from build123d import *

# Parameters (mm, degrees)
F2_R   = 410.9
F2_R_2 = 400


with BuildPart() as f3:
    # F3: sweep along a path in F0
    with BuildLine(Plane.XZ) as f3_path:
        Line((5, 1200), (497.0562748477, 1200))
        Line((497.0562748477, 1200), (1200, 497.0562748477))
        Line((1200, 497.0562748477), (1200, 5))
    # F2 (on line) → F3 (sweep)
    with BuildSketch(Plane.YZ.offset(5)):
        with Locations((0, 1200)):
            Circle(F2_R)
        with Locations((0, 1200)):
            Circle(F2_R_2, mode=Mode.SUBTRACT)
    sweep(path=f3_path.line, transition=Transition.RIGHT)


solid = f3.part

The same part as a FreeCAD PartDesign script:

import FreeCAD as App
import Part
import Sketcher

V = App.Vector
Q = App.Units.Quantity

doc = App.newDocument("Part")
body = doc.addObject("PartDesign::Body", "Body")

sketch1 = body.newObject("Sketcher::SketchObject", "Sketch")
sketch1.AttachmentSupport = (doc.getObject("YZ_Plane"), [""])
sketch1.MapMode = "FlatFace"
sketch1.AttachmentOffset = App.Placement(V(0, 0, 5), App.Rotation())
sketch1.addGeometry([
    Part.Circle(V(0, 1200, 0), V(0, 0, 1), 411),
    Part.Circle(V(0, 1200, 0), V(0, 0, 1), 400),
], False)
sketch1.addConstraint([
    Sketcher.Constraint("Coincident", 1, 3, 0, 3),
    Sketcher.Constraint("PointOnObject", 0, 3, -2),
    Sketcher.Constraint("Diameter", 1, 800.0),
    Sketcher.Constraint("Diameter", 0, 821.8),
    Sketcher.Constraint("DistanceY", -1, 1, 0, 3, 1200.0),
])

sketch2 = body.newObject("Sketcher::SketchObject", "Sketch001")
sketch2.AttachmentSupport = (doc.getObject("XZ_Plane"), [""])
sketch2.MapMode = "FlatFace"
sketch2.addGeometry([
    Part.LineSegment(V(5, 1200, 0), V(497, 1200, 0)),
    Part.LineSegment(V(497, 1200, 0), V(1200, 497, 0)),
    Part.LineSegment(V(1200, 497, 0), V(1200, 5, 0)),
], False)
sketch2.addConstraint([
    Sketcher.Constraint("Coincident", 0, 2, 1, 1),
    Sketcher.Constraint("Coincident", 1, 2, 2, 1),
    Sketcher.Constraint("Horizontal", 0),
    Sketcher.Constraint("Vertical", 2),
    Sketcher.Constraint("Equal", 0, 2),
    Sketcher.Constraint("Angle", 1, Q("-45 deg")),
    Sketcher.Constraint("DistanceX", -1, 1, 0, 1, 5.0),
    Sketcher.Constraint("DistanceY", -1, 1, 0, 1, 1200.0),
    Sketcher.Constraint("DistanceX", -1, 1, 1, 2, 1200.0),
    Sketcher.Constraint("Distance", 1, 994.11255),
])
doc.recompute()

additivepipe = body.newObject("PartDesign::AdditivePipe", "AdditivePipe")
additivepipe.Profile = sketch1
additivepipe.Spine = (sketch2, ["Edge1", "Edge2", "Edge3"])
additivepipe.Transition = "Right corner"

doc.recompute()
